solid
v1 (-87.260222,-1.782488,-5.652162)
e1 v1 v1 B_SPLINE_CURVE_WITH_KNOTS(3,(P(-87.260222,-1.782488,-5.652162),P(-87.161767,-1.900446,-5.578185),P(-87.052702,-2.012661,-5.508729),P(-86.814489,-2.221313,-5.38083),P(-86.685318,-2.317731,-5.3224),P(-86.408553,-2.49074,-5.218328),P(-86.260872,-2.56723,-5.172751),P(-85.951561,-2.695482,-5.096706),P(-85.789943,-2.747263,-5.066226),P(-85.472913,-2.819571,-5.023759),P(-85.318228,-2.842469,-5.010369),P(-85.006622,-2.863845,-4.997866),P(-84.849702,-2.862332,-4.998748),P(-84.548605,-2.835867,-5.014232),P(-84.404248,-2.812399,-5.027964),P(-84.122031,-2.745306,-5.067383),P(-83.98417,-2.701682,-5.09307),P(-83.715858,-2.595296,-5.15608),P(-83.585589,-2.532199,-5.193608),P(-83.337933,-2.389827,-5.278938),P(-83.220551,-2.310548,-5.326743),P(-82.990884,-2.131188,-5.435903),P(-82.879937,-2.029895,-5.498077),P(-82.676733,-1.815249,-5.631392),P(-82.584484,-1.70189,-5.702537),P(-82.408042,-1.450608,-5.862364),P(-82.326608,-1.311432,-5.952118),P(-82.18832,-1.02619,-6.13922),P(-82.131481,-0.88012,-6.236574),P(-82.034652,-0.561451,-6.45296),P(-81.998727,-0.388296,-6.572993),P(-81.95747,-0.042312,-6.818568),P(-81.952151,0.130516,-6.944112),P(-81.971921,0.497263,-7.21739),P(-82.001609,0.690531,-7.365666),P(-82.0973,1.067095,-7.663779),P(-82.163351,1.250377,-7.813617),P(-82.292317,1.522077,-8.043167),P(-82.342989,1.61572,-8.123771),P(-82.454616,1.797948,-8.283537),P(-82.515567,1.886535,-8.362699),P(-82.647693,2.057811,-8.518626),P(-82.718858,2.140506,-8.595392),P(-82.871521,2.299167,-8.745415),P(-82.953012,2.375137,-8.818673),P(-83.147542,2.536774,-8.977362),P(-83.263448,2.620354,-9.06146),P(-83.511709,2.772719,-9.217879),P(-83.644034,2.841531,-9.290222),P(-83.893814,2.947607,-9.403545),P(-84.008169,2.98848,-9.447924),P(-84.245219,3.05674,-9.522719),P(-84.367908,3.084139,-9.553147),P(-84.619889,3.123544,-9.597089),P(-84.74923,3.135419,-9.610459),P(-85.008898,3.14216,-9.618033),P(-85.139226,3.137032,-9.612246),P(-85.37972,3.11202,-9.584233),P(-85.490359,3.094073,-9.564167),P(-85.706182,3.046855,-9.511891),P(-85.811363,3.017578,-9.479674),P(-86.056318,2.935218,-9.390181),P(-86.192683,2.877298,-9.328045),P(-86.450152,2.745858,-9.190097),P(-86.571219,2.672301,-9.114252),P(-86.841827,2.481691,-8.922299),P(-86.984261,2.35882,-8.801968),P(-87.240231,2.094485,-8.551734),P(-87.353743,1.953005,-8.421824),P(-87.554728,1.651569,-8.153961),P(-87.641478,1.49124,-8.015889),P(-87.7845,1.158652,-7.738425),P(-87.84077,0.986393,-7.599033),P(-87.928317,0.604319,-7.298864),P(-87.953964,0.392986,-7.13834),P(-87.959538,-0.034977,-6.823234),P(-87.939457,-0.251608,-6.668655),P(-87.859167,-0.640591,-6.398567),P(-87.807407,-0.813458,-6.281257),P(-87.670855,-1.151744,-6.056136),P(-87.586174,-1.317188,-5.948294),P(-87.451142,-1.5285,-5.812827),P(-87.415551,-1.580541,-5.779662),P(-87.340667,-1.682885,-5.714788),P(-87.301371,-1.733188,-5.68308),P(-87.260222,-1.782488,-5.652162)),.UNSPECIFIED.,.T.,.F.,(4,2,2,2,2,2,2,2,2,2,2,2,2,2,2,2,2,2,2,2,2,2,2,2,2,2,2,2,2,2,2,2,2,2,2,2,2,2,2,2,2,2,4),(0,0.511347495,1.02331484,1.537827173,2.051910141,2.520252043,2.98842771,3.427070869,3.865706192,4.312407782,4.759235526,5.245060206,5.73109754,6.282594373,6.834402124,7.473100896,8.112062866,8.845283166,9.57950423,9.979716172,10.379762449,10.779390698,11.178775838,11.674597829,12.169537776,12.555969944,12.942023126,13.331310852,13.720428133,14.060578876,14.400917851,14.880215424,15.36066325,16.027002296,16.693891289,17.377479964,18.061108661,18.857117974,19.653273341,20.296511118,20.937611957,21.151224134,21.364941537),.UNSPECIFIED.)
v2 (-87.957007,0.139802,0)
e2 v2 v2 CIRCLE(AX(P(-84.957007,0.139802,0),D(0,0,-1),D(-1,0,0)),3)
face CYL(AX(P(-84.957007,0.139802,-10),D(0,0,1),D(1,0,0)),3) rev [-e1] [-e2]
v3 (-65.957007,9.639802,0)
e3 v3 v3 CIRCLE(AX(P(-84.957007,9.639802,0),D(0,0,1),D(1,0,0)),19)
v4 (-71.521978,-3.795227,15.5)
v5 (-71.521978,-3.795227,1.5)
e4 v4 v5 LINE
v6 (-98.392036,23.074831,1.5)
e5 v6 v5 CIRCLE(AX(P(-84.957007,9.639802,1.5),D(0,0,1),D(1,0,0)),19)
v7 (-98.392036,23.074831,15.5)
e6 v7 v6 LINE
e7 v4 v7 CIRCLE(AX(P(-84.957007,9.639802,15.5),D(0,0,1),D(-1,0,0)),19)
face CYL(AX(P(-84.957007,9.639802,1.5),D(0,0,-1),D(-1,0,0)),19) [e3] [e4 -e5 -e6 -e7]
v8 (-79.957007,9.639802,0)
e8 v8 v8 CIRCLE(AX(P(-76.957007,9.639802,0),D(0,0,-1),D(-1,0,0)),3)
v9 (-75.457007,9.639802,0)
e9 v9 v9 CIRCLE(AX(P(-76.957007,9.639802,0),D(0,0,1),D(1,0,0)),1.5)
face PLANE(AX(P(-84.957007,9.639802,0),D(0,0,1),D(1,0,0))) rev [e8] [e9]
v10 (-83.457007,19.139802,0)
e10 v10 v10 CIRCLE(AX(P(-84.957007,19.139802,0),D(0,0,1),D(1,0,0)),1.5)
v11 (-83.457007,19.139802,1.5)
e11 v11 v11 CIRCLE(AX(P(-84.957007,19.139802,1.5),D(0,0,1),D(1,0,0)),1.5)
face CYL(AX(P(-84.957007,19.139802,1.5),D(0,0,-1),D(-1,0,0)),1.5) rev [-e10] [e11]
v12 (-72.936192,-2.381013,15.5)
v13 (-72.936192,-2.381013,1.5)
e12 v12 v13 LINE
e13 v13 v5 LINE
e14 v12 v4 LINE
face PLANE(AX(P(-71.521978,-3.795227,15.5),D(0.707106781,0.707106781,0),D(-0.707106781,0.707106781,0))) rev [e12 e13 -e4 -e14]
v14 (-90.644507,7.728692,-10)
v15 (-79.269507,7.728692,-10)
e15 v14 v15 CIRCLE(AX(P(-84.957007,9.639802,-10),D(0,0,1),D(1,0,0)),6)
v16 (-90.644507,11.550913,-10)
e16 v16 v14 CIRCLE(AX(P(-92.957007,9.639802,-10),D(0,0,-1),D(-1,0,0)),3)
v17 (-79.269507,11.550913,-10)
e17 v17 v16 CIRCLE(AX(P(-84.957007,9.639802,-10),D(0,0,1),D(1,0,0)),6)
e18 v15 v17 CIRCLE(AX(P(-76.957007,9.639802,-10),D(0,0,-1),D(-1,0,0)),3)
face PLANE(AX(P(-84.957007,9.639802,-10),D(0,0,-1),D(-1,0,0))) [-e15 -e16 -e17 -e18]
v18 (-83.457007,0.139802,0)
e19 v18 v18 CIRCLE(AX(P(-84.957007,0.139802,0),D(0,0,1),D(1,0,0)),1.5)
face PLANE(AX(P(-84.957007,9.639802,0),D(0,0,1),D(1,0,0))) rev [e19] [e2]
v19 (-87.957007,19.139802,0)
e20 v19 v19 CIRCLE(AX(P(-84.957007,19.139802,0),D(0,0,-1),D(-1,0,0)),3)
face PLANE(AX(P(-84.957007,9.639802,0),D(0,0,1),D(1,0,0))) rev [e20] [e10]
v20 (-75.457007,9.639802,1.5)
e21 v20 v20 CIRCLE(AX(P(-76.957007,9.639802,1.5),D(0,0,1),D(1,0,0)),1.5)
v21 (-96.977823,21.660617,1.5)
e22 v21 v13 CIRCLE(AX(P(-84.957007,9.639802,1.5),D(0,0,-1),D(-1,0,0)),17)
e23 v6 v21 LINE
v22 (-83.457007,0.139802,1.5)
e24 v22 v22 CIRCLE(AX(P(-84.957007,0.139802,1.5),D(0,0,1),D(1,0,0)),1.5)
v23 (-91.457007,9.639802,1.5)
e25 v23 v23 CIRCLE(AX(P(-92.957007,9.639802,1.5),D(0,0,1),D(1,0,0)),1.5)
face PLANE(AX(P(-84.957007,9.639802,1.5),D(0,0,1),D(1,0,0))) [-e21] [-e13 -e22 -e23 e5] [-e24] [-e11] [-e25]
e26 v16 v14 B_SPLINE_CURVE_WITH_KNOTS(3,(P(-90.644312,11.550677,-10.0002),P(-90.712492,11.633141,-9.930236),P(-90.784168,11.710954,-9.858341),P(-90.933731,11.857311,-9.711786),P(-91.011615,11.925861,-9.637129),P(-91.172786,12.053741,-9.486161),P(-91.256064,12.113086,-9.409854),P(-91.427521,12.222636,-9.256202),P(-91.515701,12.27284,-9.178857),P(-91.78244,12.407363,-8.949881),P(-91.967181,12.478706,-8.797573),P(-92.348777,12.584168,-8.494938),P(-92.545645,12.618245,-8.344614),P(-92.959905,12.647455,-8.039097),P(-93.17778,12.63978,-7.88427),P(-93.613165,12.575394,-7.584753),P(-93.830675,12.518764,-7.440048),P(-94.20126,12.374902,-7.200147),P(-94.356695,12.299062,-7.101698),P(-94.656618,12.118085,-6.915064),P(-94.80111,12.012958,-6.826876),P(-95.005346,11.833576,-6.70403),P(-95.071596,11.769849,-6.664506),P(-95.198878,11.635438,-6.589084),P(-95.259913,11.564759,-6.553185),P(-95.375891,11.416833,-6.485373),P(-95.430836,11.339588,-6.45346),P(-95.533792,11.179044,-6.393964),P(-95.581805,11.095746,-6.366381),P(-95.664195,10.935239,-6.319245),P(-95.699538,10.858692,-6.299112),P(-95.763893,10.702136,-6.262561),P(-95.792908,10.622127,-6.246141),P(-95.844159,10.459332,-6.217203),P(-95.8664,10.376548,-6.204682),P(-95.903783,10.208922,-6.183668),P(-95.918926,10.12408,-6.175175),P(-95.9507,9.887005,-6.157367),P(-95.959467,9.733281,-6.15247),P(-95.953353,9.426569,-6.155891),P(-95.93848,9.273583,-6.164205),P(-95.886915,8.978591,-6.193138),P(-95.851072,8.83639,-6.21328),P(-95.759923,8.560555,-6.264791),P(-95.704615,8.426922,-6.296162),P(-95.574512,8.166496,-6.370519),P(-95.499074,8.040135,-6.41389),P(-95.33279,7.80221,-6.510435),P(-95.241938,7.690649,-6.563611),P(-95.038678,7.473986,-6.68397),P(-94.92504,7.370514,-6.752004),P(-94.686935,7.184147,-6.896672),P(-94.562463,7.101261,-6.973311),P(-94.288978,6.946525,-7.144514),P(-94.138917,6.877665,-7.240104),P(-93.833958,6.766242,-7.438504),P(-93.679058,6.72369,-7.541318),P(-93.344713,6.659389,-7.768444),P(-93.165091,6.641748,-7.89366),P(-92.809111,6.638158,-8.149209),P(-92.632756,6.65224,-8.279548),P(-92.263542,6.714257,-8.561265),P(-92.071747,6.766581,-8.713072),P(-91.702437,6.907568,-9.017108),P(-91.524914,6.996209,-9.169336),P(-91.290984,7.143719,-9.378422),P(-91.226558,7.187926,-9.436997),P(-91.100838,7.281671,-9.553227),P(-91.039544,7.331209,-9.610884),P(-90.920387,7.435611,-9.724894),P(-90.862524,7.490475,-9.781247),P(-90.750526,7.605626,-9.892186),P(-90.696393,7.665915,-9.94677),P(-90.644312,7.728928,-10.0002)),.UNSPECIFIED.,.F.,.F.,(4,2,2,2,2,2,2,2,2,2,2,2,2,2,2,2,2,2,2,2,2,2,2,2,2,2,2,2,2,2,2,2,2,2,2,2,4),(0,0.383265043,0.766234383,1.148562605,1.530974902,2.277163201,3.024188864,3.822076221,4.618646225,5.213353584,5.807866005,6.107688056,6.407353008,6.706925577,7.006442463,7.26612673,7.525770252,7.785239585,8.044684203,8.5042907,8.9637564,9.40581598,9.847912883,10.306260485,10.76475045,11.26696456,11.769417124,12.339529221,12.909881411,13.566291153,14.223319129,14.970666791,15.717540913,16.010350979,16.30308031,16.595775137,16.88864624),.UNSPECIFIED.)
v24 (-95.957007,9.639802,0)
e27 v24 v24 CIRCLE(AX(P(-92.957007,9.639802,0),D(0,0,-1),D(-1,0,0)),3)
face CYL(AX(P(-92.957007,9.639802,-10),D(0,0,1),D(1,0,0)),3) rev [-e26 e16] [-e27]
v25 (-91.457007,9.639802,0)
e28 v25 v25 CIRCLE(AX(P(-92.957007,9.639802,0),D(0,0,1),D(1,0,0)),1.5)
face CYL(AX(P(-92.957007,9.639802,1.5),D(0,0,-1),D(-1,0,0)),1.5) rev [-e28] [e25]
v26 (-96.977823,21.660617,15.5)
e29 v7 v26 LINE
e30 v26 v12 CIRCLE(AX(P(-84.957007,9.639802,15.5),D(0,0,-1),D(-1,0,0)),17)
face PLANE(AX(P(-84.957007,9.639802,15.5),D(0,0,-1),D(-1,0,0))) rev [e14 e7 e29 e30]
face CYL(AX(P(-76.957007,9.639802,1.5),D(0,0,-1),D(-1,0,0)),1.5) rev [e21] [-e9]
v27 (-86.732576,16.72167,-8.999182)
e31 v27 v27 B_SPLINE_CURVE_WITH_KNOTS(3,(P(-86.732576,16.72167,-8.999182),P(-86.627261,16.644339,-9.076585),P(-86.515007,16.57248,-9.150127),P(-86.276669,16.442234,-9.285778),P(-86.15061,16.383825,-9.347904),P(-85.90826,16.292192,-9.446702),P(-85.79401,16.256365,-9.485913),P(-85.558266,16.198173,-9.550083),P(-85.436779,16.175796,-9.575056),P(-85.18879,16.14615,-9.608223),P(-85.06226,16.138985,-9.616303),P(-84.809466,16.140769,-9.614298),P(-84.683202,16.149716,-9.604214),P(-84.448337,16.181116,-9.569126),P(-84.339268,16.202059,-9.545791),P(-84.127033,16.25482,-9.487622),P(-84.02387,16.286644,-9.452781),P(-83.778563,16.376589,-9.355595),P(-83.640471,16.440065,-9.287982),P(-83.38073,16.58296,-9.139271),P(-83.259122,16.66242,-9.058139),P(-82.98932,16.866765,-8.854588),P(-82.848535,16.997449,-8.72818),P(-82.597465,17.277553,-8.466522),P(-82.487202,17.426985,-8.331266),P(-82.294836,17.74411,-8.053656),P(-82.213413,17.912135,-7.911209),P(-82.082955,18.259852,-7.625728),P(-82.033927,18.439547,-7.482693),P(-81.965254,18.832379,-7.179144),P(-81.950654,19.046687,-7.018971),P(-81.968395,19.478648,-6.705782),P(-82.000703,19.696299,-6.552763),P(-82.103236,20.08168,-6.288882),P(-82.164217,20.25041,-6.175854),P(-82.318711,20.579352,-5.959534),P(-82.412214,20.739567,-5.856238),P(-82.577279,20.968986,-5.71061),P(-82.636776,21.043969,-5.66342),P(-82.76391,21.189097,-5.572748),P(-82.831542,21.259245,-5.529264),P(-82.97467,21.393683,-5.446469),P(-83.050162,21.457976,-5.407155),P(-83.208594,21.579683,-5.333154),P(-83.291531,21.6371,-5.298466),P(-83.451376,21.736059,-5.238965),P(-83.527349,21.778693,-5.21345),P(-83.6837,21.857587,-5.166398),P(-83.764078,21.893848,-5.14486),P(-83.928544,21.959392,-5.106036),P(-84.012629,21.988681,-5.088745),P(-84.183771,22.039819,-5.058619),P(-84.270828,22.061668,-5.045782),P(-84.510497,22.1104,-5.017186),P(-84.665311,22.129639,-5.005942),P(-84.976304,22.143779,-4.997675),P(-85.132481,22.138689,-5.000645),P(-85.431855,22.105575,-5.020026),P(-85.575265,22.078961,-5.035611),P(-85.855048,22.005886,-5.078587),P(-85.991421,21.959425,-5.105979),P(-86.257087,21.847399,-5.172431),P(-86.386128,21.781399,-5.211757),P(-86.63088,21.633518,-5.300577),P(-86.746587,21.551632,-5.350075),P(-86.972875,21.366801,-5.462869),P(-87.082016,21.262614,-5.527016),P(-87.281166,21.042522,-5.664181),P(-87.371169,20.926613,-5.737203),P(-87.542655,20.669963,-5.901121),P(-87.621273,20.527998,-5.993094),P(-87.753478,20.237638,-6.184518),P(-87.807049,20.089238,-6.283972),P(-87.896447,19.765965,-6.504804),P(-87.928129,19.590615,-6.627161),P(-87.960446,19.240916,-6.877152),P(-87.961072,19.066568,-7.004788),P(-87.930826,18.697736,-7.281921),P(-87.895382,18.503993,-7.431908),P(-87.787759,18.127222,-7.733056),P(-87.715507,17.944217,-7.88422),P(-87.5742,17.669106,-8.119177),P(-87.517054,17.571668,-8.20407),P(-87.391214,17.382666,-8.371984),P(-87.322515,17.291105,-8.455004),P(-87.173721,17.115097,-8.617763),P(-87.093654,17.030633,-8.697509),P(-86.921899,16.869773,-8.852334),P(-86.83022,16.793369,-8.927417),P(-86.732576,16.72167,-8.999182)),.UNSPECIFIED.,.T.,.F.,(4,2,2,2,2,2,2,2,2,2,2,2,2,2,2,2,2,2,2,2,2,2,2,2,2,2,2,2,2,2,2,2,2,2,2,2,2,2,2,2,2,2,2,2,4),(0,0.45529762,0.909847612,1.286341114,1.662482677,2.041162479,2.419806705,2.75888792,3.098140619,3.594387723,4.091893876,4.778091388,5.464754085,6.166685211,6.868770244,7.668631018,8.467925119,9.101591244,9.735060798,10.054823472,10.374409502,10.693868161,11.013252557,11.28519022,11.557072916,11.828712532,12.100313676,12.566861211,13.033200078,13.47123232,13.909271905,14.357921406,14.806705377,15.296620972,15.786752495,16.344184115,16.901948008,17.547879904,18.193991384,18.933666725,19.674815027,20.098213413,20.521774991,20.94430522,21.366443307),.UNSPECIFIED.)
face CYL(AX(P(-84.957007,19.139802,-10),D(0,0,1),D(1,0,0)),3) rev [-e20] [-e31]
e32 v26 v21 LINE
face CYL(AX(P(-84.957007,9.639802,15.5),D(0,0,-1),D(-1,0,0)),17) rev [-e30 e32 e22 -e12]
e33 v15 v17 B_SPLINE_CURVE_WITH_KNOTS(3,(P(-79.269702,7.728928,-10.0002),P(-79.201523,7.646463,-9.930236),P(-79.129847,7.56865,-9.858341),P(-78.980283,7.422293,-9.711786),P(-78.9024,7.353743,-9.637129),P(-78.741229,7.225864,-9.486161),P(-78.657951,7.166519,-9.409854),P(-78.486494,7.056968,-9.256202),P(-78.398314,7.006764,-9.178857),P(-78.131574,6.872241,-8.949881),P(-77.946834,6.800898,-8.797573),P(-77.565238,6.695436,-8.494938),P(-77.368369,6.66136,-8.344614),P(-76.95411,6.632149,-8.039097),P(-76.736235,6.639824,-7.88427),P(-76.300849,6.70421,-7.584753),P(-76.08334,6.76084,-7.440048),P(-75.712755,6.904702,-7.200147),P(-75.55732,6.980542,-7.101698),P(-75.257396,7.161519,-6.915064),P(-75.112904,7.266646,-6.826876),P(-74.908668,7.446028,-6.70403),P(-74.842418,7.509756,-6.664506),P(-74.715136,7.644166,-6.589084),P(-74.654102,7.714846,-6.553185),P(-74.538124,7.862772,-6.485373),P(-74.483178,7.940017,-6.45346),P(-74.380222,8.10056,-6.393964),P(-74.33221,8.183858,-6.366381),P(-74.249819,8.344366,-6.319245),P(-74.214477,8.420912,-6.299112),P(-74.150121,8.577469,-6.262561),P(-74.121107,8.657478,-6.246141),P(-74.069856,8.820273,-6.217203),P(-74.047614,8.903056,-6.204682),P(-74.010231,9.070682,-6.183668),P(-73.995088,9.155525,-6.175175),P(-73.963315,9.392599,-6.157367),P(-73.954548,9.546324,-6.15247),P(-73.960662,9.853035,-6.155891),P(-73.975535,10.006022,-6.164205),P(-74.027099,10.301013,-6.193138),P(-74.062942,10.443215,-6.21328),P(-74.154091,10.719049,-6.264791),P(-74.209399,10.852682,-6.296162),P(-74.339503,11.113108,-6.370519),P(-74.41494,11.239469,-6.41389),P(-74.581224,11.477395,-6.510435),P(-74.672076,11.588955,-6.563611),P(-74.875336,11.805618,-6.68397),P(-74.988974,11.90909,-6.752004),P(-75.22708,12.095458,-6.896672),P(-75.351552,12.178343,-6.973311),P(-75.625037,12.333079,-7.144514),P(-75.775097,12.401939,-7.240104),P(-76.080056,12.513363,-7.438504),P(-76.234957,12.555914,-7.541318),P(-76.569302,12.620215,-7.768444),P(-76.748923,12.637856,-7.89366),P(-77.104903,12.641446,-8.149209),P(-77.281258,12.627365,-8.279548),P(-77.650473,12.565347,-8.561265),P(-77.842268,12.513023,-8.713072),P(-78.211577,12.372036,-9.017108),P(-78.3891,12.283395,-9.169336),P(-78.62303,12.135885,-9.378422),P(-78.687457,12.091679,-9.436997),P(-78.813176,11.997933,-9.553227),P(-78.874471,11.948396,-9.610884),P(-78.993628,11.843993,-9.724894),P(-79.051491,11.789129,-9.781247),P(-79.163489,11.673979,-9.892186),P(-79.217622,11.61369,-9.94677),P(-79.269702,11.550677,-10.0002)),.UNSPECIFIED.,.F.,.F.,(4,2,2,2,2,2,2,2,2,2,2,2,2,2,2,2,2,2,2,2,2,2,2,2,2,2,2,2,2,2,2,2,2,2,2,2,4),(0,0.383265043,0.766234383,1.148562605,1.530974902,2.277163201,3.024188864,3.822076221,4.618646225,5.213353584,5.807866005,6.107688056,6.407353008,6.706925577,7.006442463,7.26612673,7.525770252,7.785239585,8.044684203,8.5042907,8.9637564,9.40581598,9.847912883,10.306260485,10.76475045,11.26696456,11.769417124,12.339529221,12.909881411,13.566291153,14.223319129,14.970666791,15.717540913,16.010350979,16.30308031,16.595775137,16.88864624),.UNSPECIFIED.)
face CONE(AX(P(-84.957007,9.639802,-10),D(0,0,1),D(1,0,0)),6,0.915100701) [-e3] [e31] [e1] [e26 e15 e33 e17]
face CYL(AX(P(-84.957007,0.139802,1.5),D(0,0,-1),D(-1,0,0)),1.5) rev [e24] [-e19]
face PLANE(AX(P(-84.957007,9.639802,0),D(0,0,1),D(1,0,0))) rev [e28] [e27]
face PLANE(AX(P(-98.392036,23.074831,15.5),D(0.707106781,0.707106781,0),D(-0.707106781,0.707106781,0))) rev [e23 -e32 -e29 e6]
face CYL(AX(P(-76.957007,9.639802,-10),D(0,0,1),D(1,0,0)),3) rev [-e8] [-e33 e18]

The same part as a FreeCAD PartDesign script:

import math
import FreeCAD as App
import Part
import Sketcher
Q = App.Units.Quantity


def add_polygon(sketch, points):
    """Adds a closed chain of lines whose ends are joined by coincident constraints."""
    first, n = sketch.GeometryCount, len(points)
    for a, b in zip(points, points[1:] + points[:1]):
        sketch.addGeometry(Part.LineSegment(App.Vector(*a, 0), App.Vector(*b, 0)), False)
    for i in range(n):
        sketch.addConstraint(Sketcher.Constraint("Coincident", first + i, 2, first + (i + 1) % n, 1))

doc = App.newDocument("Part")
body = doc.addObject("PartDesign::Body", "Body")

sketch1 = body.newObject("Sketcher::SketchObject", "Sketch")
sketch1.AttachmentSupport = (doc.getObject("XY_Plane"), [""])
sketch1.MapMode = "FlatFace"
sketch1.addGeometry(Part.Circle(App.Vector(-84.957007, 9.639802, 0), App.Vector(0, 0, 1), 19), False)
sketch1.addGeometry(Part.Circle(App.Vector(-84.957007, 0.139802, 0), App.Vector(0, 0, 1), 1.5), False)
sketch1.addGeometry(Part.Circle(App.Vector(-92.957007, 9.639802, 0), App.Vector(0, 0, 1), 1.5), False)
sketch1.addGeometry(Part.Circle(App.Vector(-76.957007, 9.639802, 0), App.Vector(0, 0, 1), 1.5), False)
sketch1.addGeometry(Part.Circle(App.Vector(-84.957007, 19.139802, 0), App.Vector(0, 0, 1), 1.5), False)
sketch1.addConstraint(Sketcher.Constraint("Equal", 1, 2))
sketch1.addConstraint(Sketcher.Constraint("Equal", 2, 3))
sketch1.addConstraint(Sketcher.Constraint("Equal", 3, 4))
sketch1.addConstraint(Sketcher.Constraint("Horizontal", 0, 3, 2, 3))
sketch1.addConstraint(Sketcher.Constraint("Horizontal", 2, 3, 3, 3))
sketch1.addConstraint(Sketcher.Constraint("Vertical", 0, 3, 1, 3))
sketch1.addConstraint(Sketcher.Constraint("Vertical", 1, 3, 4, 3))
sketch1.addConstraint(Sketcher.Constraint("Diameter", 0, Q("38 mm")))
sketch1.addConstraint(Sketcher.Constraint("Diameter", 1, Q("3 mm")))
sketch1.addConstraint(Sketcher.Constraint("DistanceX", 2, 3, 0, 3, Q("8 mm")))
sketch1.addConstraint(Sketcher.Constraint("DistanceX", 0, 3, 3, 3, Q("8 mm")))
sketch1.addConstraint(Sketcher.Constraint("DistanceY", 1, 3, 4, 3, Q("19 mm")))
sketch1.addConstraint(Sketcher.Constraint("DistanceY", 1, 3, 0, 3, Q("9.5 mm")))
sketch1.addConstraint(Sketcher.Constraint("DistanceY", -1, 1, 4, 3, Q("19.139802 mm")))
sketch1.addConstraint(Sketcher.Constraint("DistanceX", 0, 3, -1, 1, Q("84.957007 mm")))
pad1 = body.newObject("PartDesign::Pad", "Pad")
pad1.Profile = sketch1
pad1.Length = 1.5

sketch2 = body.newObject("Sketcher::SketchObject", "Sketch001")
sketch2.AttachmentSupport = (doc.getObject("XY_Plane"), [""])
sketch2.MapMode = "FlatFace"
sketch2.AttachmentOffset = App.Placement(App.Vector(0, 0, 1.5), App.Rotation())
sketch2.addGeometry(Part.LineSegment(App.Vector(-98.392036, 23.074831, 0), App.Vector(-96.977823, 21.660617, 0)), False)
sketch2.addGeometry(Part.ArcOfCircle(Part.Circle(App.Vector(-84.957008, 9.639802, 0), App.Vector(0, 0, 1), 17), math.radians(-44.999999), math.radians(135.000001)), False)
sketch2.addGeometry(Part.LineSegment(App.Vector(-72.936192, -2.381013, 0), App.Vector(-71.521978, -3.795227, 0)), False)
sketch2.addGeometry(Part.ArcOfCircle(Part.Circle(App.Vector(-84.957007, 9.639802, 0), App.Vector(0, 0, 1), 19), math.radians(-45), math.radians(135)), False)
sketch2.addConstraint(Sketcher.Constraint("Coincident", 0, 2, 1, 2))
sketch2.addConstraint(Sketcher.Constraint("Coincident", 1, 1, 2, 1))
sketch2.addConstraint(Sketcher.Constraint("Coincident", 2, 2, 3, 1))
sketch2.addConstraint(Sketcher.Constraint("Coincident", 3, 2, 0, 1))
sketch2.addConstraint(Sketcher.Constraint("Coincident", 3, 3, 1, 3))
sketch2.addConstraint(Sketcher.Constraint("Parallel", 0, 2))
sketch2.addConstraint(Sketcher.Constraint("Radius", 1, Q("17 mm")))
sketch2.addConstraint(Sketcher.Constraint("Radius", 3, Q("19 mm")))
sketch2.addConstraint(Sketcher.Constraint("Angle", 2, Q("-45 deg")))
sketch2.addConstraint(Sketcher.Constraint("DistanceX", 2, 2, -1, 1, Q("71.521978 mm")))
sketch2.addConstraint(Sketcher.Constraint("DistanceY", -1, 1, 3, 2, Q("23.074831 mm")))
sketch2.addConstraint(Sketcher.Constraint("DistanceX", 0, 2, 1, 1, Q("24.041631 mm")))
sketch2.addConstraint(Sketcher.Constraint("DistanceX", 3, 3, 2, 2, Q("13.435029 mm")))
pad2 = body.newObject("PartDesign::Pad", "Pad001")
pad2.Profile = sketch2
pad2.Length = 14

sketch3 = body.newObject("Sketcher::SketchObject", "Sketch002")
sketch3.AttachmentSupport = (doc.getObject("XY_Plane"), [""])
sketch3.MapMode = "FlatFace"
sketch3.AttachmentOffset = App.Placement(App.Vector(0, 0, -10), App.Rotation())
sketch3.addGeometry(Part.Circle(App.Vector(-84.957007, 9.639802, 0), App.Vector(0, 0, 1), 19), False)
sketch3.addGeometry(Part.Circle(App.Vector(-84.957007, 0.139802, 0), App.Vector(0, 0, 1), 3), False)
sketch3.addGeometry(Part.Circle(App.Vector(-76.957007, 9.639802, 0), App.Vector(0, 0, 1), 3), False)
sketch3.addGeometry(Part.Circle(App.Vector(-92.957007, 9.639802, 0), App.Vector(0, 0, 1), 3), False)
sketch3.addGeometry(Part.Circle(App.Vector(-84.957007, 19.139802, 0), App.Vector(0, 0, 1), 3), False)
sketch3.addConstraint(Sketcher.Constraint("Equal", 1, 2))
sketch3.addConstraint(Sketcher.Constraint("Equal", 2, 3))
sketch3.addConstraint(Sketcher.Constraint("Equal", 3, 4))
sketch3.addConstraint(Sketcher.Constraint("Horizontal", 0, 3, 2, 3))
sketch3.addConstraint(Sketcher.Constraint("Horizontal", 2, 3, 3, 3))
sketch3.addConstraint(Sketcher.Constraint("Vertical", 0, 3, 1, 3))
sketch3.addConstraint(Sketcher.Constraint("Vertical", 1, 3, 4, 3))
sketch3.addConstraint(Sketcher.Constraint("Diameter", 0, Q("38 mm")))
sketch3.addConstraint(Sketcher.Constraint("Diameter", 1, Q("6 mm")))
sketch3.addConstraint(Sketcher.Constraint("DistanceX", 0, 3, 2, 3, Q("8 mm")))
sketch3.addConstraint(Sketcher.Constraint("DistanceX", 3, 3, 0, 3, Q("8 mm")))
sketch3.addConstraint(Sketcher.Constraint("DistanceY", 1, 3, 4, 3, Q("19 mm")))
sketch3.addConstraint(Sketcher.Constraint("DistanceY", 1, 3, 0, 3, Q("9.5 mm")))
sketch3.addConstraint(Sketcher.Constraint("DistanceY", -1, 1, 4, 3, Q("19.139802 mm")))
sketch3.addConstraint(Sketcher.Constraint("DistanceX", 0, 3, -1, 1, Q("84.957007 mm")))
pad3 = body.newObject("PartDesign::Pad", "Pad002")
pad3.Profile = sketch3
pad3.Length = 10

sketch4 = body.newObject("Sketcher::SketchObject", "Sketch003")
sketch4.AttachmentSupport = (doc.getObject("XZ_Plane"), [""])
sketch4.MapMode = "FlatFace"
sketch4.AttachmentOffset = App.Placement(App.Vector(0, 0, -9.639802), App.Rotation())
add_polygon(sketch4, [(-90.957007, -10), (-103.957007, 0), (-103.957007, -10)])
sketch4.addGeometry(Part.LineSegment(App.Vector(-84.957007, 0, 0), App.Vector(-84.957007, -10, 0)), True)
sketch4.addConstraint(Sketcher.Constraint("Vertical", 1))
sketch4.addConstraint(Sketcher.Constraint("Horizontal", 2))
sketch4.addConstraint(Sketcher.Constraint("Vertical", 3))
sketch4.addConstraint(Sketcher.Constraint("PointOnObject", 0, 2, -1))
sketch4.addConstraint(Sketcher.Constraint("PointOnObject", 3, 1, -1))
sketch4.addConstraint(Sketcher.Constraint("Horizontal", 2, 2, 3, 2))
sketch4.addConstraint(Sketcher.Constraint("DistanceX", 2, 1, 2, 2, Q("13 mm")))
sketch4.addConstraint(Sketcher.Constraint("DistanceY", 1, 2, 1, 1, Q("10 mm")))
sketch4.addConstraint(Sketcher.Constraint("DistanceX", 2, 2, 3, 1, Q("6 mm")))
sketch4.addConstraint(Sketcher.Constraint("DistanceX", 0, 2, -1, 1, Q("103.957007 mm")))
groove = body.newObject("PartDesign::Groove", "Groove")
groove.Profile = sketch4
groove.ReferenceAxis = (sketch4, ["Axis0"])
groove.Angle = 360

doc.recompute()
